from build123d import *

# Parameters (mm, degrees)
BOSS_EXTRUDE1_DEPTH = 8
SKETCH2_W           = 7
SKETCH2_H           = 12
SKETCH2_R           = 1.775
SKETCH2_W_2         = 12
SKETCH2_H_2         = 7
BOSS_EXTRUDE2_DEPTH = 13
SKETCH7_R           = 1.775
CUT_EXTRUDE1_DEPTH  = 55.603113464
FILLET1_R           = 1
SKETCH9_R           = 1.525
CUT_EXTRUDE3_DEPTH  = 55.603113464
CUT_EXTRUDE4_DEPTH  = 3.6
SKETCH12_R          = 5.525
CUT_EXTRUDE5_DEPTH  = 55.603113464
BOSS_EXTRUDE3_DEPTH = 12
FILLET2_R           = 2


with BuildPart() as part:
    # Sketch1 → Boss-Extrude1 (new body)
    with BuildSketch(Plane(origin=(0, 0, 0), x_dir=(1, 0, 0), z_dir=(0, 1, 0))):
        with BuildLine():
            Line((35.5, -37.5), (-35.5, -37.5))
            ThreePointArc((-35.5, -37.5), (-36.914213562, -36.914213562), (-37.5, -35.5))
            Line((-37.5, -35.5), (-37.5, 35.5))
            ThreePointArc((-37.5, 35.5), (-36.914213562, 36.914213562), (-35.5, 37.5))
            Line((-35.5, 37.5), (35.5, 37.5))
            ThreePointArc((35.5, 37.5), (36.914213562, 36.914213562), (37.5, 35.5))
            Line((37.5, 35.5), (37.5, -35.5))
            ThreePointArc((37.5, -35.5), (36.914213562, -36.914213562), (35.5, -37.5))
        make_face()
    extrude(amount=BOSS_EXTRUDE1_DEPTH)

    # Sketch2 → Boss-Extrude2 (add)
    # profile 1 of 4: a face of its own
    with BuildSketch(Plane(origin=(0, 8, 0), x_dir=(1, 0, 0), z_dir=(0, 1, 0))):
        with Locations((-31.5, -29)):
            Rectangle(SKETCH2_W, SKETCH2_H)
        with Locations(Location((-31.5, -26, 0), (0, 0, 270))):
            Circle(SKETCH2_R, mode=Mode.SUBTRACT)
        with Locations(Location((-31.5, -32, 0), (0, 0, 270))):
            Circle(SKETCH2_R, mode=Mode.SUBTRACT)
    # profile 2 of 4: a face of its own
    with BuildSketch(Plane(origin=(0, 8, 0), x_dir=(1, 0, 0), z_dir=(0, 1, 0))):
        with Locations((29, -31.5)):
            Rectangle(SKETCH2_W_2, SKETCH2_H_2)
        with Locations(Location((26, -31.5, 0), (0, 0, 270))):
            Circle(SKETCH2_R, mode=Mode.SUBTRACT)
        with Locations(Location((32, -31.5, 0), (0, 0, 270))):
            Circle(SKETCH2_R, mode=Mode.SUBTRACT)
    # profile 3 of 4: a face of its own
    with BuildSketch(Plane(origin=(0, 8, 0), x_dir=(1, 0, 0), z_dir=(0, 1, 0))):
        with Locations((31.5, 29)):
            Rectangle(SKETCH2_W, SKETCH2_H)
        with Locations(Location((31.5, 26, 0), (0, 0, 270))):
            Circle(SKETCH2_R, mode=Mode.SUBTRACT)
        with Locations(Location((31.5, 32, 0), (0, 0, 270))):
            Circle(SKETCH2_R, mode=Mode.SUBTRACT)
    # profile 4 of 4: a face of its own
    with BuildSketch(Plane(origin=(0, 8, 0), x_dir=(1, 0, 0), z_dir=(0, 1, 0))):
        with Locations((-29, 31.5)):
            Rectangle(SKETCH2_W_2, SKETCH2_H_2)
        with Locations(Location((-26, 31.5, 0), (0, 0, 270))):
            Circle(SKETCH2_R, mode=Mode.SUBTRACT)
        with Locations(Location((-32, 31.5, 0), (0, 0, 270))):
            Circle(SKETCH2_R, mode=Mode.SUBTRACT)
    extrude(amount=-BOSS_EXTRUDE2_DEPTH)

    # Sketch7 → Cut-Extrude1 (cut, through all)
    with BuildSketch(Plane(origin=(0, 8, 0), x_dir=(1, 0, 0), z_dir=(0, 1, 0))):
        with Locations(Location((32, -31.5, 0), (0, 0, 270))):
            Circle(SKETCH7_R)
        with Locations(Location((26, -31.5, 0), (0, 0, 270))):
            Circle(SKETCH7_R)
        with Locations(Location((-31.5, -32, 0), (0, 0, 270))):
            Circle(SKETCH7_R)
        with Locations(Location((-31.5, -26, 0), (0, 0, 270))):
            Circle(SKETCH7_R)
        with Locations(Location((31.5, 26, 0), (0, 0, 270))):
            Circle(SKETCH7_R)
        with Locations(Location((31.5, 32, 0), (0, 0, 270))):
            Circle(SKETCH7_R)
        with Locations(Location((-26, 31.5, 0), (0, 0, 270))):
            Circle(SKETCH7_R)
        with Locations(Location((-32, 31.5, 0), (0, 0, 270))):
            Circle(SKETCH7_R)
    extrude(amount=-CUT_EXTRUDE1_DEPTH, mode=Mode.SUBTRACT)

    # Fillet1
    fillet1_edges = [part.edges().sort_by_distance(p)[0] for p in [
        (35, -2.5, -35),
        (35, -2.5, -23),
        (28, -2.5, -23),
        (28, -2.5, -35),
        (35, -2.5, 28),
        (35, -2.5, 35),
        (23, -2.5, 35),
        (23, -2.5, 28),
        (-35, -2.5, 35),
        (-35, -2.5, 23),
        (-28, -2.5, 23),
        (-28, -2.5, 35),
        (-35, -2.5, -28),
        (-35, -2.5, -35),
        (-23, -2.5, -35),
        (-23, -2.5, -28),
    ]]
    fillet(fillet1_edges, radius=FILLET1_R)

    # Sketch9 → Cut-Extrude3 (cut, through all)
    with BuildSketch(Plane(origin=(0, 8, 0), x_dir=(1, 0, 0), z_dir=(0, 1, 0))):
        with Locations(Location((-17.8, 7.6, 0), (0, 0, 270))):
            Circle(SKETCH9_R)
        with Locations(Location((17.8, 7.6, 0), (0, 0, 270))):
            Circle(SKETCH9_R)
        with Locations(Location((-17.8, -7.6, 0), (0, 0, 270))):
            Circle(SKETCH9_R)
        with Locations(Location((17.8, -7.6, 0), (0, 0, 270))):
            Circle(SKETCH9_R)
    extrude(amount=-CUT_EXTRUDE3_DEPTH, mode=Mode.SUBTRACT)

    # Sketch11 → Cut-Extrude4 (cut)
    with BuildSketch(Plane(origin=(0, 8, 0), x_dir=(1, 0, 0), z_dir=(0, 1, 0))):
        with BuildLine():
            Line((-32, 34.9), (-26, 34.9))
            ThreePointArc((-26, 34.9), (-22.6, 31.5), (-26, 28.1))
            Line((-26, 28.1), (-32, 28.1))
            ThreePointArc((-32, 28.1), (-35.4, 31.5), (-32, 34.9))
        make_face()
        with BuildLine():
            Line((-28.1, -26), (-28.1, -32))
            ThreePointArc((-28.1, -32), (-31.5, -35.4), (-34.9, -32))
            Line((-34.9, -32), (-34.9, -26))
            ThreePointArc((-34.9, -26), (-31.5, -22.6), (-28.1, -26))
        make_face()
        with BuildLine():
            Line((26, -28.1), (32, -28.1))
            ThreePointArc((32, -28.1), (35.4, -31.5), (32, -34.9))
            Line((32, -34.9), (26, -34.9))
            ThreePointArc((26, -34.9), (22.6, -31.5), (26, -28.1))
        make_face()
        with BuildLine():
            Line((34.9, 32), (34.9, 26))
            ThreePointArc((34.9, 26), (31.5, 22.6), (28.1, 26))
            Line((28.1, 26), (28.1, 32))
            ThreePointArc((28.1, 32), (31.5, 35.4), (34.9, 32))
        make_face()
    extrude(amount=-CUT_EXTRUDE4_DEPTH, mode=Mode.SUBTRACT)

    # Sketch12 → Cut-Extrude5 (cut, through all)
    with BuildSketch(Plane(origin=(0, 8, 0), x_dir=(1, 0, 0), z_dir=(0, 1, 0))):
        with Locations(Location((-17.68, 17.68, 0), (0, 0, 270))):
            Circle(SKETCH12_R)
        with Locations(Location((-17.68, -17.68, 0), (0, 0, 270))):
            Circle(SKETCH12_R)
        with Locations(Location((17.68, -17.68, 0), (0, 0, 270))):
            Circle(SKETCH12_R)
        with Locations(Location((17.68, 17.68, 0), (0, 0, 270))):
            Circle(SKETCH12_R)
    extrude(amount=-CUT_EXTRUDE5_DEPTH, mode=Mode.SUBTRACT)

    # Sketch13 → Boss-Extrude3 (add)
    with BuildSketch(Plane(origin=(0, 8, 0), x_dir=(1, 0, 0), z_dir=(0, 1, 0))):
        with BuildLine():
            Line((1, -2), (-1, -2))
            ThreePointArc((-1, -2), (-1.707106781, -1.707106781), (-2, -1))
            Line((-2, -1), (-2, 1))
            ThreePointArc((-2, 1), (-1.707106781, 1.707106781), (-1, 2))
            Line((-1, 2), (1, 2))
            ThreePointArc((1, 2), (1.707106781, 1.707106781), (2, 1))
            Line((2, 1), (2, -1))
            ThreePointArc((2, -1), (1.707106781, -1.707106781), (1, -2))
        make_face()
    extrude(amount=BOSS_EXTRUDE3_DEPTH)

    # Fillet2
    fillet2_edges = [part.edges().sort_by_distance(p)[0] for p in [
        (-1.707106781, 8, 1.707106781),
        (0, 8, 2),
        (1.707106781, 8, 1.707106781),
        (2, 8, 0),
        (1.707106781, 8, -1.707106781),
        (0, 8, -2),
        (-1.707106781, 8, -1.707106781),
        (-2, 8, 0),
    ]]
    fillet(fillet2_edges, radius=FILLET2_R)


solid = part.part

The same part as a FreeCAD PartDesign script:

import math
import FreeCAD as App
import Part
import Sketcher

V = App.Vector


def edges_at(feature, points):
    """Names of the edges that pass closest to the given points."""
    edges = feature.Shape.Edges
    near = lambda p: min(range(len(edges)), key=lambda i: edges[i].distToShape(Part.Vertex(*p))[0])
    return sorted({f"Edge{near(p) + 1}" for p in points})


def add_polygon(sketch, points):
    """Adds a closed chain of lines whose ends are joined by coincident constraints."""
    first, n = sketch.GeometryCount, len(points)
    for a, b in zip(points, points[1:] + points[:1]):
        sketch.addGeometry(Part.LineSegment(App.Vector(*a, 0), App.Vector(*b, 0)), False)
    for i in range(n):
        sketch.addConstraint(Sketcher.Constraint("Coincident", first + i, 2, first + (i + 1) % n, 1))

doc = App.newDocument("Part")
body = doc.addObject("PartDesign::Body", "Body")

# Sketch on XZ plane
sketch1 = doc.addObject("Sketcher::SketchObject", "Sketch")
body.addObject(sketch1)
sketch1.AttachmentSupport = (doc.XZ_Plane, [""])
sketch1.MapMode = "FlatFace"
sketch1.addGeometry([
    Part.LineSegment(V(-35.5, 37.5, 0), V(35.5, 37.5, 0)),  # 0
    Part.ArcOfCircle(Part.Circle(V(35.5, 35.5, 0), V(0, 0, 1), 2), math.radians(0), math.radians(90)),  # 1
    Part.LineSegment(V(37.5, 35.5, 0), V(37.5, -35.5, 0)),  # 2
    Part.ArcOfCircle(Part.Circle(V(35.5, -35.5, 0), V(0, 0, 1), 2), math.radians(-90), math.radians(0)),  # 3
    Part.LineSegment(V(35.5, -37.5, 0), V(-35.5, -37.5, 0)),  # 4
    Part.ArcOfCircle(Part.Circle(V(-35.5, -35.5, 0), V(0, 0, 1), 2), math.radians(-180), math.radians(-90)),  # 5
    Part.LineSegment(V(-37.5, -35.5, 0), V(-37.5, 35.5, 0)),  # 6
    Part.ArcOfCircle(Part.Circle(V(-35.5, 35.5, 0), V(0, 0, 1), 2), math.radians(90), math.radians(180)),  # 7
], False)
sketch1.addConstraint([
    Sketcher.Constraint("Tangent", 0, 2, 1, 2),
    Sketcher.Constraint("Tangent", 1, 1, 2, 1),
    Sketcher.Constraint("Tangent", 2, 2, 3, 2),
    Sketcher.Constraint("Tangent", 3, 1, 4, 1),
    Sketcher.Constraint("Tangent", 4, 2, 5, 2),
    Sketcher.Constraint("Tangent", 5, 1, 6, 1),
    Sketcher.Constraint("Tangent", 6, 2, 7, 2),
    Sketcher.Constraint("Tangent", 7, 1, 0, 1),
    Sketcher.Constraint("Horizontal", 0),
    Sketcher.Constraint("Vertical", 2),
    Sketcher.Constraint("Horizontal", 4),
    Sketcher.Constraint("Vertical", 6),
    Sketcher.Constraint("Equal", 1, 3),
    Sketcher.Constraint("Equal", 3, 5),
    Sketcher.Constraint("Equal", 5, 7),
    Sketcher.Constraint("Symmetric", 1, 3, 5, 3, -1, 1),
    Sketcher.Constraint("Equal", 4, 2),
    Sketcher.Constraint("Radius", 1, 2.0),
    Sketcher.Constraint("DistanceX", 0, 1, 0, 2, 71.0),
])
pad1 = doc.addObject("PartDesign::Pad", "Pad")
body.addObject(pad1)
pad1.Profile = sketch1
pad1.Length = 8
pad1.Reversed = True

# Sketch on XZ plane
sketch2 = doc.addObject("Sketcher::SketchObject", "Sketch001")
body.addObject(sketch2)
sketch2.AttachmentSupport = (doc.XZ_Plane, [""])
sketch2.MapMode = "FlatFace"
sketch2.AttachmentOffset = App.Placement(V(0, 0, -8), App.Rotation())
add_polygon(sketch2, [(-35, 23), (-35, 35), (-28, 35), (-28, 23)])  # lines 0-3
sketch2.addGeometry(Part.Circle(V(-31.5, 32, 0), V(0, 0, 1), 1.775), False)  # 4
sketch2.addGeometry(Part.Circle(V(-31.5, 26, 0), V(0, 0, 1), 1.775), False)  # 5
add_polygon(sketch2, [(23, 28), (23, 35), (35, 35), (35, 28)])  # lines 6-9
sketch2.addGeometry(Part.Circle(V(26, 31.5, 0), V(0, 0, 1), 1.775), False)  # 10
sketch2.addGeometry(Part.Circle(V(32, 31.5, 0), V(0, 0, 1), 1.775), False)  # 11
add_polygon(sketch2, [(28, -35), (28, -23), (35, -23), (35, -35)])  # lines 12-15
sketch2.addGeometry(Part.Circle(V(31.5, -26, 0), V(0, 0, 1), 1.775), False)  # 16
sketch2.addGeometry(Part.Circle(V(31.5, -32, 0), V(0, 0, 1), 1.775), False)  # 17
add_polygon(sketch2, [(-35, -35), (-35, -28), (-23, -28), (-23, -35)])  # lines 18-21
sketch2.addGeometry(Part.Circle(V(-32, -31.5, 0), V(0, 0, 1), 1.775), False)  # 22
sketch2.addGeometry(Part.Circle(V(-26, -31.5, 0), V(0, 0, 1), 1.775), False)  # 23
sketch2.addConstraint([
    Sketcher.Constraint("Vertical", 0),
    Sketcher.Constraint("Horizontal", 1),
    Sketcher.Constraint("Vertical", 2),
    Sketcher.Constraint("Horizontal", 3),
    Sketcher.Constraint("Vertical", 6),
    Sketcher.Constraint("Horizontal", 7),
    Sketcher.Constraint("Vertical", 8),
    Sketcher.Constraint("Horizontal", 9),
    Sketcher.Constraint("Vertical", 12),
    Sketcher.Constraint("Horizontal", 13),
    Sketcher.Constraint("Vertical", 14),
    Sketcher.Constraint("Horizontal", 15),
    Sketcher.Constraint("Vertical", 18),
    Sketcher.Constraint("Horizontal", 19),
    Sketcher.Constraint("Vertical", 20),
    Sketcher.Constraint("Horizontal", 21),
    Sketcher.Constraint("Equal", 4, 5),
    Sketcher.Constraint("Equal", 5, 10),
    Sketcher.Constraint("Equal", 10, 11),
    Sketcher.Constraint("Equal", 11, 16),
    Sketcher.Constraint("Equal", 16, 17),
    Sketcher.Constraint("Equal", 17, 22),
    Sketcher.Constraint("Equal", 22, 23),
    Sketcher.Constraint("Symmetric", 5, 3, 16, 3, -1, 1),
    Sketcher.Constraint("Symmetric", 4, 3, 17, 3, -1, 1),
    Sketcher.Constraint("Symmetric", 11, 3, 22, 3, -1, 1),
    Sketcher.Constraint("Symmetric", 10, 3, 23, 3, -1, 1),
    Sketcher.Constraint("Symmetric", 2, 2, 12, 2, -1, 1),
    Sketcher.Constraint("Symmetric", 0, 2, 14, 2, -1, 1),
    Sketcher.Constraint("Symmetric", 8, 2, 18, 2, -1, 1),
    Sketcher.Constraint("Symmetric", 6, 2, 20, 2, -1, 1),
    Sketcher.Constraint("Symmetric", 0, 2, 7, 2, -2),
    Sketcher.Constraint("Horizontal", 10, 3, 11, 3),
    Sketcher.Constraint("Vertical", 4, 3, 5, 3),
    Sketcher.Constraint("Equal", 21, 0),
    Sketcher.Constraint("Equal", 15, 6),
    Sketcher.Constraint("Diameter", 4, 3.55),
    Sketcher.Constraint("DistanceX", 1, 1, 1, 2, 7.0),
    Sketcher.Constraint("DistanceX", 7, 1, 7, 2, 12.0),
    Sketcher.Constraint("DistanceY", -1, 1, 4, 3, 32.0),
    Sketcher.Constraint("DistanceY", -1, 1, 5, 3, 26.0),
    Sketcher.Constraint("DistanceX", -1, 1, 10, 3, 26.0),
    Sketcher.Constraint("DistanceX", -1, 1, 11, 3, 32.0),
    Sketcher.Constraint("DistanceX", 0, 2, -1, 1, 35.0),
    Sketcher.Constraint("DistanceY", -1, 1, 0, 2, 35.0),
    Sketcher.Constraint("DistanceX", 5, 3, 16, 3, 63.0),
    Sketcher.Constraint("DistanceY", 22, 3, 10, 3, 63.0),
])
pad2 = doc.addObject("PartDesign::Pad", "Pad001")
body.addObject(pad2)
pad2.Profile = sketch2
pad2.Length = 13

# Sketch on XZ plane
sketch3 = doc.addObject("Sketcher::SketchObject", "Sketch002")
body.addObject(sketch3)
sketch3.AttachmentSupport = (doc.XZ_Plane, [""])
sketch3.MapMode = "FlatFace"
sketch3.AttachmentOffset = App.Placement(V(0, 0, -8), App.Rotation())
sketch3.addGeometry([
    Part.Circle(V(32, 31.5, 0), V(0, 0, 1), 1.775),  # 0
    Part.Circle(V(26, 31.5, 0), V(0, 0, 1), 1.775),  # 1
    Part.Circle(V(-31.5, 32, 0), V(0, 0, 1), 1.775),  # 2
    Part.Circle(V(-31.5, 26, 0), V(0, 0, 1), 1.775),  # 3
    Part.Circle(V(31.5, -26, 0), V(0, 0, 1), 1.775),  # 4
    Part.Circle(V(31.5, -32, 0), V(0, 0, 1), 1.775),  # 5
    Part.Circle(V(-26, -31.5, 0), V(0, 0, 1), 1.775),  # 6
    Part.Circle(V(-32, -31.5, 0), V(0, 0, 1), 1.775),  # 7
], False)
sketch3.addConstraint([
    Sketcher.Constraint("Equal", 0, 1),
    Sketcher.Constraint("Equal", 1, 2),
    Sketcher.Constraint("Equal", 2, 3),
    Sketcher.Constraint("Equal", 3, 4),
    Sketcher.Constraint("Equal", 4, 5),
    Sketcher.Constraint("Equal", 5, 6),
    Sketcher.Constraint("Equal", 6, 7),
    Sketcher.Constraint("Symmetric", 3, 3, 4, 3, -1, 1),
    Sketcher.Constraint("Symmetric", 2, 3, 5, 3, -1, 1),
    Sketcher.Constraint("Symmetric", 1, 3, 6, 3, -1, 1),
    Sketcher.Constraint("Symmetric", 0, 3, 7, 3, -1, 1),
    Sketcher.Constraint("Horizontal", 0, 3, 1, 3),
    Sketcher.Constraint("Vertical", 2, 3, 3, 3),
    Sketcher.Constraint("Diameter", 0, 3.55),
    Sketcher.Constraint("DistanceX", -1, 1, 0, 3, 32.0),
    Sketcher.Constraint("DistanceX", -1, 1, 1, 3, 26.0),
    Sketcher.Constraint("DistanceY", -1, 1, 2, 3, 32.0),
    Sketcher.Constraint("DistanceY", -1, 1, 3, 3, 26.0),
    Sketcher.Constraint("DistanceX", 3, 3, 4, 3, 63.0),
    Sketcher.Constraint("DistanceY", 6, 3, 1, 3, 63.0),
])
pocket1 = doc.addObject("PartDesign::Pocket", "Pocket")
body.addObject(pocket1)
pocket1.Profile = sketch3
pocket1.Type = "ThroughAll"
pocket1.Reversed = True
doc.recompute()

fillet = doc.addObject("PartDesign::Fillet", "Fillet")
body.addObject(fillet)
fillet.Base = (pocket1, edges_at(pocket1, [
    (35, -2.5, -35),
    (35, -2.5, -23),
    (28, -2.5, -23),
    (28, -2.5, -35),
    (35, -2.5, 28),
    (35, -2.5, 35),
    (23, -2.5, 35),
    (23, -2.5, 28),
    (-35, -2.5, 35),
    (-35, -2.5, 23),
    (-28, -2.5, 23),
    (-28, -2.5, 35),
    (-35, -2.5, -28),
    (-35, -2.5, -35),
    (-23, -2.5, -35),
    (-23, -2.5, -28),
]))
fillet.Radius = 1

# Sketch on XZ plane
sketch4 = doc.addObject("Sketcher::SketchObject", "Sketch003")
body.addObject(sketch4)
sketch4.AttachmentSupport = (doc.XZ_Plane, [""])
sketch4.MapMode = "FlatFace"
sketch4.AttachmentOffset = App.Placement(V(0, 0, -8), App.Rotation())
sketch4.addGeometry([
    Part.Circle(V(-17.8, -7.6, 0), V(0, 0, 1), 1.525),
    Part.Circle(V(17.8, -7.6, 0), V(0, 0, 1), 1.525),
    Part.Circle(V(-17.8, 7.6, 0), V(0, 0, 1), 1.525),
    Part.Circle(V(17.8, 7.6, 0), V(0, 0, 1), 1.525),
], False)
sketch4.addConstraint([
    Sketcher.Constraint("Equal", 0, 1),
    Sketcher.Constraint("Equal", 1, 2),
    Sketcher.Constraint("Equal", 2, 3),
    Sketcher.Constraint("Symmetric", 1, 3, 2, 3, -1, 1),
    Sketcher.Constraint("Symmetric", 0, 3, 3, 3, -1, 1),
    Sketcher.Constraint("Symmetric", 0, 3, 1, 3, -2),
    Sketcher.Constraint("Diameter", 0, 3.05),
    Sketcher.Constraint("DistanceX", 0, 3, -1, 1, 17.8),
    Sketcher.Constraint("DistanceY", 0, 3, -1, 1, 7.6),
])
pocket2 = doc.addObject("PartDesign::Pocket", "Pocket001")
body.addObject(pocket2)
pocket2.Profile = sketch4
pocket2.Type = "ThroughAll"
pocket2.Reversed = True

# Sketch on XZ plane
sketch5 = doc.addObject("Sketcher::SketchObject", "Sketch004")
body.addObject(sketch5)
sketch5.AttachmentSupport = (doc.XZ_Plane, [""])
sketch5.MapMode = "FlatFace"
sketch5.AttachmentOffset = App.Placement(V(0, 0, -8), App.Rotation())
sketch5.addGeometry([
    Part.LineSegment(V(-26, -34.9, 0), V(-32, -34.9, 0)),  # 0
    Part.ArcOfCircle(Part.Circle(V(-32, -31.5, 0), V(0, 0, 1), 3.4), math.radians(90), math.radians(270)),  # 1
    Part.LineSegment(V(-32, -28.1, 0), V(-26, -28.1, 0)),  # 2
    Part.ArcOfCircle(Part.Circle(V(-26, -31.5, 0), V(0, 0, 1), 3.4), math.radians(-90), math.radians(90)),  # 3
    Part.LineSegment(V(-28.1, 32, 0), V(-28.1, 26, 0)),  # 4
    Part.ArcOfCircle(Part.Circle(V(-31.5, 26, 0), V(0, 0, 1), 3.4), math.radians(180), math.radians(360)),  # 5
    Part.LineSegment(V(-34.9, 26, 0), V(-34.9, 32, 0)),  # 6
    Part.ArcOfCircle(Part.Circle(V(-31.5, 32, 0), V(0, 0, 1), 3.4), math.radians(0), math.radians(180)),  # 7
    Part.LineSegment(V(32, 28.1, 0), V(26, 28.1, 0)),  # 8
    Part.ArcOfCircle(Part.Circle(V(26, 31.5, 0), V(0, 0, 1), 3.4), math.radians(90), math.radians(270)),  # 9
    Part.LineSegment(V(26, 34.9, 0), V(32, 34.9, 0)),  # 10
    Part.ArcOfCircle(Part.Circle(V(32, 31.5, 0), V(0, 0, 1), 3.4), math.radians(-90), math.radians(90)),  # 11
    Part.LineSegment(V(34.9, -26, 0), V(34.9, -32, 0)),  # 12
    Part.ArcOfCircle(Part.Circle(V(31.5, -32, 0), V(0, 0, 1), 3.4), math.radians(180), math.radians(360)),  # 13
    Part.LineSegment(V(28.1, -32, 0), V(28.1, -26, 0)),  # 14
    Part.ArcOfCircle(Part.Circle(V(31.5, -26, 0), V(0, 0, 1), 3.4), math.radians(0), math.radians(180)),  # 15
], False)
sketch5.addConstraint([
    Sketcher.Constraint("Tangent", 0, 2, 1, 2),
    Sketcher.Constraint("Tangent", 1, 1, 2, 1),
    Sketcher.Constraint("Tangent", 2, 2, 3, 2),
    Sketcher.Constraint("Tangent", 3, 1, 0, 1),
    Sketcher.Constraint("Tangent", 4, 2, 5, 2),
    Sketcher.Constraint("Tangent", 5, 1, 6, 1),
    Sketcher.Constraint("Tangent", 6, 2, 7, 2),
    Sketcher.Constraint("Tangent", 7, 1, 4, 1),
    Sketcher.Constraint("Tangent", 8, 2, 9, 2),
    Sketcher.Constraint("Tangent", 9, 1, 10, 1),
    Sketcher.Constraint("Tangent", 10, 2, 11, 2),
    Sketcher.Constraint("Tangent", 11, 1, 8, 1),
    Sketcher.Constraint("Tangent", 12, 2, 13, 2),
    Sketcher.Constraint("Tangent", 13, 1, 14, 1),
    Sketcher.Constraint("Tangent", 14, 2, 15, 2),
    Sketcher.Constraint("Tangent", 15, 1, 12, 1),
    Sketcher.Constraint("Horizontal", 0),
    Sketcher.Constraint("Horizontal", 2),
    Sketcher.Constraint("Vertical", 4),
    Sketcher.Constraint("Vertical", 6),
    Sketcher.Constraint("Horizontal", 8),
    Sketcher.Constraint("Horizontal", 10),
    Sketcher.Constraint("Vertical", 12),
    Sketcher.Constraint("Vertical", 14),
    Sketcher.Constraint("Equal", 3, 5),
    Sketcher.Constraint("Equal", 7, 9),
    Sketcher.Constraint("Equal", 11, 13),
    Sketcher.Constraint("Symmetric", 3, 3, 9, 3, -1, 1),
    Sketcher.Constraint("Symmetric", 7, 3, 13, 3, -1, 1),
    Sketcher.Constraint("Equal", 2, 8),
    Sketcher.Constraint("Equal", 10, 4),
    Sketcher.Constraint("Equal", 6, 12),
    Sketcher.Constraint("Radius", 1, 3.4),
    Sketcher.Constraint("DistanceX", 0, 2, 0, 1, 6.0),
    Sketcher.Constraint("DistanceX", 1, 3, -1, 1, 32.0),
    Sketcher.Constraint("DistanceY", -1, 1, 5, 3, 26.0),
    Sketcher.Constraint("DistanceY", 3, 3, 9, 3, 63.0),
    Sketcher.Constraint("DistanceX", 5, 3, 13, 3, 63.0),
])
pocket3 = doc.addObject("PartDesign::Pocket", "Pocket002")
body.addObject(pocket3)
pocket3.Profile = sketch5
pocket3.Length = 3.6
pocket3.Reversed = True

# Sketch on XZ plane
sketch6 = doc.addObject("Sketcher::SketchObject", "Sketch005")
body.addObject(sketch6)
sketch6.AttachmentSupport = (doc.XZ_Plane, [""])
sketch6.MapMode = "FlatFace"
sketch6.AttachmentOffset = App.Placement(V(0, 0, -8), App.Rotation())
sketch6.addGeometry([
    Part.Circle(V(-17.68, -17.68, 0), V(0, 0, 1), 5.525),
    Part.Circle(V(-17.68, 17.68, 0), V(0, 0, 1), 5.525),
    Part.Circle(V(17.68, 17.68, 0), V(0, 0, 1), 5.525),
    Part.Circle(V(17.68, -17.68, 0), V(0, 0, 1), 5.525),
], False)
sketch6.addConstraint([
    Sketcher.Constraint("Equal", 0, 1),
    Sketcher.Constraint("Equal", 1, 2),
    Sketcher.Constraint("Equal", 2, 3),
    Sketcher.Constraint("Symmetric", 0, 3, 2, 3, -1, 1),
    Sketcher.Constraint("Symmetric", 1, 3, 3, 3, -1, 1),
    Sketcher.Constraint("Symmetric", 1, 3, 2, 3, -2),
    Sketcher.Constraint("Diameter", 0, 11.05),
    Sketcher.Constraint("DistanceX", 0, 3, -1, 1, 17.68),
    Sketcher.Constraint("DistanceY", 0, 3, -1, 1, 17.68),
])
pocket4 = doc.addObject("PartDesign::Pocket", "Pocket003")
body.addObject(pocket4)
pocket4.Profile = sketch6
pocket4.Type = "ThroughAll"
pocket4.Reversed = True

# Sketch on XZ plane
sketch7 = doc.addObject("Sketcher::SketchObject", "Sketch006")
body.addObject(sketch7)
sketch7.AttachmentSupport = (doc.XZ_Plane, [""])
sketch7.MapMode = "FlatFace"
sketch7.AttachmentOffset = App.Placement(V(0, 0, -8), App.Rotation())
sketch7.addGeometry([
    Part.LineSegment(V(-1, 2, 0), V(1, 2, 0)),  # 0
    Part.ArcOfCircle(Part.Circle(V(1, 1, 0), V(0, 0, 1), 1), math.radians(0), math.radians(90)),  # 1
    Part.LineSegment(V(2, 1, 0), V(2, -1, 0)),  # 2
    Part.ArcOfCircle(Part.Circle(V(1, -1, 0), V(0, 0, 1), 1), math.radians(-90), math.radians(0)),  # 3
    Part.LineSegment(V(1, -2, 0), V(-1, -2, 0)),  # 4
    Part.ArcOfCircle(Part.Circle(V(-1, -1, 0), V(0, 0, 1), 1), math.radians(-180), math.radians(-90)),  # 5
    Part.LineSegment(V(-2, -1, 0), V(-2, 1, 0)),  # 6
    Part.ArcOfCircle(Part.Circle(V(-1, 1, 0), V(0, 0, 1), 1), math.radians(90), math.radians(180)),  # 7
], False)
sketch7.addConstraint([
    Sketcher.Constraint("Tangent", 0, 2, 1, 2),
    Sketcher.Constraint("Tangent", 1, 1, 2, 1),
    Sketcher.Constraint("Tangent", 2, 2, 3, 2),
    Sketcher.Constraint("Tangent", 3, 1, 4, 1),
    Sketcher.Constraint("Tangent", 4, 2, 5, 2),
    Sketcher.Constraint("Tangent", 5, 1, 6, 1),
    Sketcher.Constraint("Tangent", 6, 2, 7, 2),
    Sketcher.Constraint("Tangent", 7, 1, 0, 1),
    Sketcher.Constraint("Horizontal", 0),
    Sketcher.Constraint("Vertical", 2),
    Sketcher.Constraint("Horizontal", 4),
    Sketcher.Constraint("Vertical", 6),
    Sketcher.Constraint("Equal", 1, 3),
    Sketcher.Constraint("Equal", 3, 5),
    Sketcher.Constraint("Equal", 5, 7),
    Sketcher.Constraint("Symmetric", 1, 3, 5, 3, -1, 1),
    Sketcher.Constraint("Equal", 4, 2),
    Sketcher.Constraint("Radius", 1, 1.0),
    Sketcher.Constraint("DistanceX", 0, 1, 0, 2, 2.0),
])
pad3 = doc.addObject("PartDesign::Pad", "Pad002")
body.addObject(pad3)
pad3.Profile = sketch7
pad3.Length = 12
pad3.Reversed = True
doc.recompute()

fillet2 = doc.addObject("PartDesign::Fillet", "Fillet001")
body.addObject(fillet2)
fillet2.Base = (pad3, edges_at(pad3, [
    (-1.707, 8, 1.707),
    (0, 8, 2),
    (1.707, 8, 1.707),
    (2, 8, 0),
    (1.707, 8, -1.707),
    (0, 8, -2),
    (-1.707, 8, -1.707),
    (-2, 8, 0),
]))
fillet2.Radius = 2

doc.recompute()
